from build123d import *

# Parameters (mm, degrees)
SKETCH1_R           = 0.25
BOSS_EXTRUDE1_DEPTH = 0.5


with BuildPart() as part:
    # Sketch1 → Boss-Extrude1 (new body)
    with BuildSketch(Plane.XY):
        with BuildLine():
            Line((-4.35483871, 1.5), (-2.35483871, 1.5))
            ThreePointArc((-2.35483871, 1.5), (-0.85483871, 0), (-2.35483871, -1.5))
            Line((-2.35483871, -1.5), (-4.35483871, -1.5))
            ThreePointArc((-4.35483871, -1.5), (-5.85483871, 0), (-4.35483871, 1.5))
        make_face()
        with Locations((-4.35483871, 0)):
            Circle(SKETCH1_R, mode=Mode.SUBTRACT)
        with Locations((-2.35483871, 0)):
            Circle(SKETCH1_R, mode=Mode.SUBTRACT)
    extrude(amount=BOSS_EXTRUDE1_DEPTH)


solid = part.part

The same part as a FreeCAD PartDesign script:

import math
import FreeCAD as App
import Part
import Sketcher
from FreeCAD import Vector

doc = App.newDocument("Part")
body = doc.addObject("PartDesign::Body", "Body")

sketch1 = doc.addObject("Sketcher::SketchObject", "Sketch")
body.addObject(sketch1)
sketch1.AttachmentSupport = (doc.XY_Plane, [""])
sketch1.MapMode = "FlatFace"
sketch1.addGeometry(Part.LineSegment(Vector(-2.354839, 1.5, 0), Vector(-4.354839, 1.5, 0)), False)
sketch1.addGeometry(Part.ArcOfCircle(Part.Circle(Vector(-4.354839, 0, 0), Vector(0, 0, 1), 1.5), math.radians(90), math.radians(270)), False)
sketch1.addGeometry(Part.LineSegment(Vector(-4.354839, -1.5, 0), Vector(-2.354839, -1.5, 0)), False)
sketch1.addGeometry(Part.ArcOfCircle(Part.Circle(Vector(-2.354839, 0, 0), Vector(0, 0, 1), 1.5), math.radians(-90), math.radians(90)), False)
sketch1.addGeometry(Part.Circle(Vector(-2.354839, 0, 0), Vector(0, 0, 1), 0.25), False)
sketch1.addGeometry(Part.Circle(Vector(-4.354839, 0, 0), Vector(0, 0, 1), 0.25), False)
sketch1.addConstraint(Sketcher.Constraint("Tangent", 0, 2, 1, 1))
sketch1.addConstraint(Sketcher.Constraint("Tangent", 1, 2, 2, 1))
sketch1.addConstraint(Sketcher.Constraint("Tangent", 2, 2, 3, 1))
sketch1.addConstraint(Sketcher.Constraint("Tangent", 3, 2, 0, 1))
sketch1.addConstraint(Sketcher.Constraint("Horizontal", 0))
sketch1.addConstraint(Sketcher.Constraint("Horizontal", 2))
sketch1.addConstraint(Sketcher.Constraint("Coincident", 4, 3, 3, 3))
sketch1.addConstraint(Sketcher.Constraint("Coincident", 5, 3, 1, 3))
sketch1.addConstraint(Sketcher.Constraint("Equal", 4, 5))
sketch1.addConstraint(Sketcher.Constraint("PointOnObject", 1, 3, -1))
sketch1.addConstraint(Sketcher.Constraint("Diameter", 4, 0.5))
sketch1.addConstraint(Sketcher.Constraint("Radius", 1, 1.5))
sketch1.addConstraint(Sketcher.Constraint("DistanceX", 0, 2, 0, 1, 2.0))
sketch1.addConstraint(Sketcher.Constraint("DistanceX", 1, 3, -1, 1, 4.354839))
pad1 = doc.addObject("PartDesign::Pad", "Pad")
body.addObject(pad1)
pad1.Profile = sketch1
pad1.Length = 0.5

doc.recompute()
